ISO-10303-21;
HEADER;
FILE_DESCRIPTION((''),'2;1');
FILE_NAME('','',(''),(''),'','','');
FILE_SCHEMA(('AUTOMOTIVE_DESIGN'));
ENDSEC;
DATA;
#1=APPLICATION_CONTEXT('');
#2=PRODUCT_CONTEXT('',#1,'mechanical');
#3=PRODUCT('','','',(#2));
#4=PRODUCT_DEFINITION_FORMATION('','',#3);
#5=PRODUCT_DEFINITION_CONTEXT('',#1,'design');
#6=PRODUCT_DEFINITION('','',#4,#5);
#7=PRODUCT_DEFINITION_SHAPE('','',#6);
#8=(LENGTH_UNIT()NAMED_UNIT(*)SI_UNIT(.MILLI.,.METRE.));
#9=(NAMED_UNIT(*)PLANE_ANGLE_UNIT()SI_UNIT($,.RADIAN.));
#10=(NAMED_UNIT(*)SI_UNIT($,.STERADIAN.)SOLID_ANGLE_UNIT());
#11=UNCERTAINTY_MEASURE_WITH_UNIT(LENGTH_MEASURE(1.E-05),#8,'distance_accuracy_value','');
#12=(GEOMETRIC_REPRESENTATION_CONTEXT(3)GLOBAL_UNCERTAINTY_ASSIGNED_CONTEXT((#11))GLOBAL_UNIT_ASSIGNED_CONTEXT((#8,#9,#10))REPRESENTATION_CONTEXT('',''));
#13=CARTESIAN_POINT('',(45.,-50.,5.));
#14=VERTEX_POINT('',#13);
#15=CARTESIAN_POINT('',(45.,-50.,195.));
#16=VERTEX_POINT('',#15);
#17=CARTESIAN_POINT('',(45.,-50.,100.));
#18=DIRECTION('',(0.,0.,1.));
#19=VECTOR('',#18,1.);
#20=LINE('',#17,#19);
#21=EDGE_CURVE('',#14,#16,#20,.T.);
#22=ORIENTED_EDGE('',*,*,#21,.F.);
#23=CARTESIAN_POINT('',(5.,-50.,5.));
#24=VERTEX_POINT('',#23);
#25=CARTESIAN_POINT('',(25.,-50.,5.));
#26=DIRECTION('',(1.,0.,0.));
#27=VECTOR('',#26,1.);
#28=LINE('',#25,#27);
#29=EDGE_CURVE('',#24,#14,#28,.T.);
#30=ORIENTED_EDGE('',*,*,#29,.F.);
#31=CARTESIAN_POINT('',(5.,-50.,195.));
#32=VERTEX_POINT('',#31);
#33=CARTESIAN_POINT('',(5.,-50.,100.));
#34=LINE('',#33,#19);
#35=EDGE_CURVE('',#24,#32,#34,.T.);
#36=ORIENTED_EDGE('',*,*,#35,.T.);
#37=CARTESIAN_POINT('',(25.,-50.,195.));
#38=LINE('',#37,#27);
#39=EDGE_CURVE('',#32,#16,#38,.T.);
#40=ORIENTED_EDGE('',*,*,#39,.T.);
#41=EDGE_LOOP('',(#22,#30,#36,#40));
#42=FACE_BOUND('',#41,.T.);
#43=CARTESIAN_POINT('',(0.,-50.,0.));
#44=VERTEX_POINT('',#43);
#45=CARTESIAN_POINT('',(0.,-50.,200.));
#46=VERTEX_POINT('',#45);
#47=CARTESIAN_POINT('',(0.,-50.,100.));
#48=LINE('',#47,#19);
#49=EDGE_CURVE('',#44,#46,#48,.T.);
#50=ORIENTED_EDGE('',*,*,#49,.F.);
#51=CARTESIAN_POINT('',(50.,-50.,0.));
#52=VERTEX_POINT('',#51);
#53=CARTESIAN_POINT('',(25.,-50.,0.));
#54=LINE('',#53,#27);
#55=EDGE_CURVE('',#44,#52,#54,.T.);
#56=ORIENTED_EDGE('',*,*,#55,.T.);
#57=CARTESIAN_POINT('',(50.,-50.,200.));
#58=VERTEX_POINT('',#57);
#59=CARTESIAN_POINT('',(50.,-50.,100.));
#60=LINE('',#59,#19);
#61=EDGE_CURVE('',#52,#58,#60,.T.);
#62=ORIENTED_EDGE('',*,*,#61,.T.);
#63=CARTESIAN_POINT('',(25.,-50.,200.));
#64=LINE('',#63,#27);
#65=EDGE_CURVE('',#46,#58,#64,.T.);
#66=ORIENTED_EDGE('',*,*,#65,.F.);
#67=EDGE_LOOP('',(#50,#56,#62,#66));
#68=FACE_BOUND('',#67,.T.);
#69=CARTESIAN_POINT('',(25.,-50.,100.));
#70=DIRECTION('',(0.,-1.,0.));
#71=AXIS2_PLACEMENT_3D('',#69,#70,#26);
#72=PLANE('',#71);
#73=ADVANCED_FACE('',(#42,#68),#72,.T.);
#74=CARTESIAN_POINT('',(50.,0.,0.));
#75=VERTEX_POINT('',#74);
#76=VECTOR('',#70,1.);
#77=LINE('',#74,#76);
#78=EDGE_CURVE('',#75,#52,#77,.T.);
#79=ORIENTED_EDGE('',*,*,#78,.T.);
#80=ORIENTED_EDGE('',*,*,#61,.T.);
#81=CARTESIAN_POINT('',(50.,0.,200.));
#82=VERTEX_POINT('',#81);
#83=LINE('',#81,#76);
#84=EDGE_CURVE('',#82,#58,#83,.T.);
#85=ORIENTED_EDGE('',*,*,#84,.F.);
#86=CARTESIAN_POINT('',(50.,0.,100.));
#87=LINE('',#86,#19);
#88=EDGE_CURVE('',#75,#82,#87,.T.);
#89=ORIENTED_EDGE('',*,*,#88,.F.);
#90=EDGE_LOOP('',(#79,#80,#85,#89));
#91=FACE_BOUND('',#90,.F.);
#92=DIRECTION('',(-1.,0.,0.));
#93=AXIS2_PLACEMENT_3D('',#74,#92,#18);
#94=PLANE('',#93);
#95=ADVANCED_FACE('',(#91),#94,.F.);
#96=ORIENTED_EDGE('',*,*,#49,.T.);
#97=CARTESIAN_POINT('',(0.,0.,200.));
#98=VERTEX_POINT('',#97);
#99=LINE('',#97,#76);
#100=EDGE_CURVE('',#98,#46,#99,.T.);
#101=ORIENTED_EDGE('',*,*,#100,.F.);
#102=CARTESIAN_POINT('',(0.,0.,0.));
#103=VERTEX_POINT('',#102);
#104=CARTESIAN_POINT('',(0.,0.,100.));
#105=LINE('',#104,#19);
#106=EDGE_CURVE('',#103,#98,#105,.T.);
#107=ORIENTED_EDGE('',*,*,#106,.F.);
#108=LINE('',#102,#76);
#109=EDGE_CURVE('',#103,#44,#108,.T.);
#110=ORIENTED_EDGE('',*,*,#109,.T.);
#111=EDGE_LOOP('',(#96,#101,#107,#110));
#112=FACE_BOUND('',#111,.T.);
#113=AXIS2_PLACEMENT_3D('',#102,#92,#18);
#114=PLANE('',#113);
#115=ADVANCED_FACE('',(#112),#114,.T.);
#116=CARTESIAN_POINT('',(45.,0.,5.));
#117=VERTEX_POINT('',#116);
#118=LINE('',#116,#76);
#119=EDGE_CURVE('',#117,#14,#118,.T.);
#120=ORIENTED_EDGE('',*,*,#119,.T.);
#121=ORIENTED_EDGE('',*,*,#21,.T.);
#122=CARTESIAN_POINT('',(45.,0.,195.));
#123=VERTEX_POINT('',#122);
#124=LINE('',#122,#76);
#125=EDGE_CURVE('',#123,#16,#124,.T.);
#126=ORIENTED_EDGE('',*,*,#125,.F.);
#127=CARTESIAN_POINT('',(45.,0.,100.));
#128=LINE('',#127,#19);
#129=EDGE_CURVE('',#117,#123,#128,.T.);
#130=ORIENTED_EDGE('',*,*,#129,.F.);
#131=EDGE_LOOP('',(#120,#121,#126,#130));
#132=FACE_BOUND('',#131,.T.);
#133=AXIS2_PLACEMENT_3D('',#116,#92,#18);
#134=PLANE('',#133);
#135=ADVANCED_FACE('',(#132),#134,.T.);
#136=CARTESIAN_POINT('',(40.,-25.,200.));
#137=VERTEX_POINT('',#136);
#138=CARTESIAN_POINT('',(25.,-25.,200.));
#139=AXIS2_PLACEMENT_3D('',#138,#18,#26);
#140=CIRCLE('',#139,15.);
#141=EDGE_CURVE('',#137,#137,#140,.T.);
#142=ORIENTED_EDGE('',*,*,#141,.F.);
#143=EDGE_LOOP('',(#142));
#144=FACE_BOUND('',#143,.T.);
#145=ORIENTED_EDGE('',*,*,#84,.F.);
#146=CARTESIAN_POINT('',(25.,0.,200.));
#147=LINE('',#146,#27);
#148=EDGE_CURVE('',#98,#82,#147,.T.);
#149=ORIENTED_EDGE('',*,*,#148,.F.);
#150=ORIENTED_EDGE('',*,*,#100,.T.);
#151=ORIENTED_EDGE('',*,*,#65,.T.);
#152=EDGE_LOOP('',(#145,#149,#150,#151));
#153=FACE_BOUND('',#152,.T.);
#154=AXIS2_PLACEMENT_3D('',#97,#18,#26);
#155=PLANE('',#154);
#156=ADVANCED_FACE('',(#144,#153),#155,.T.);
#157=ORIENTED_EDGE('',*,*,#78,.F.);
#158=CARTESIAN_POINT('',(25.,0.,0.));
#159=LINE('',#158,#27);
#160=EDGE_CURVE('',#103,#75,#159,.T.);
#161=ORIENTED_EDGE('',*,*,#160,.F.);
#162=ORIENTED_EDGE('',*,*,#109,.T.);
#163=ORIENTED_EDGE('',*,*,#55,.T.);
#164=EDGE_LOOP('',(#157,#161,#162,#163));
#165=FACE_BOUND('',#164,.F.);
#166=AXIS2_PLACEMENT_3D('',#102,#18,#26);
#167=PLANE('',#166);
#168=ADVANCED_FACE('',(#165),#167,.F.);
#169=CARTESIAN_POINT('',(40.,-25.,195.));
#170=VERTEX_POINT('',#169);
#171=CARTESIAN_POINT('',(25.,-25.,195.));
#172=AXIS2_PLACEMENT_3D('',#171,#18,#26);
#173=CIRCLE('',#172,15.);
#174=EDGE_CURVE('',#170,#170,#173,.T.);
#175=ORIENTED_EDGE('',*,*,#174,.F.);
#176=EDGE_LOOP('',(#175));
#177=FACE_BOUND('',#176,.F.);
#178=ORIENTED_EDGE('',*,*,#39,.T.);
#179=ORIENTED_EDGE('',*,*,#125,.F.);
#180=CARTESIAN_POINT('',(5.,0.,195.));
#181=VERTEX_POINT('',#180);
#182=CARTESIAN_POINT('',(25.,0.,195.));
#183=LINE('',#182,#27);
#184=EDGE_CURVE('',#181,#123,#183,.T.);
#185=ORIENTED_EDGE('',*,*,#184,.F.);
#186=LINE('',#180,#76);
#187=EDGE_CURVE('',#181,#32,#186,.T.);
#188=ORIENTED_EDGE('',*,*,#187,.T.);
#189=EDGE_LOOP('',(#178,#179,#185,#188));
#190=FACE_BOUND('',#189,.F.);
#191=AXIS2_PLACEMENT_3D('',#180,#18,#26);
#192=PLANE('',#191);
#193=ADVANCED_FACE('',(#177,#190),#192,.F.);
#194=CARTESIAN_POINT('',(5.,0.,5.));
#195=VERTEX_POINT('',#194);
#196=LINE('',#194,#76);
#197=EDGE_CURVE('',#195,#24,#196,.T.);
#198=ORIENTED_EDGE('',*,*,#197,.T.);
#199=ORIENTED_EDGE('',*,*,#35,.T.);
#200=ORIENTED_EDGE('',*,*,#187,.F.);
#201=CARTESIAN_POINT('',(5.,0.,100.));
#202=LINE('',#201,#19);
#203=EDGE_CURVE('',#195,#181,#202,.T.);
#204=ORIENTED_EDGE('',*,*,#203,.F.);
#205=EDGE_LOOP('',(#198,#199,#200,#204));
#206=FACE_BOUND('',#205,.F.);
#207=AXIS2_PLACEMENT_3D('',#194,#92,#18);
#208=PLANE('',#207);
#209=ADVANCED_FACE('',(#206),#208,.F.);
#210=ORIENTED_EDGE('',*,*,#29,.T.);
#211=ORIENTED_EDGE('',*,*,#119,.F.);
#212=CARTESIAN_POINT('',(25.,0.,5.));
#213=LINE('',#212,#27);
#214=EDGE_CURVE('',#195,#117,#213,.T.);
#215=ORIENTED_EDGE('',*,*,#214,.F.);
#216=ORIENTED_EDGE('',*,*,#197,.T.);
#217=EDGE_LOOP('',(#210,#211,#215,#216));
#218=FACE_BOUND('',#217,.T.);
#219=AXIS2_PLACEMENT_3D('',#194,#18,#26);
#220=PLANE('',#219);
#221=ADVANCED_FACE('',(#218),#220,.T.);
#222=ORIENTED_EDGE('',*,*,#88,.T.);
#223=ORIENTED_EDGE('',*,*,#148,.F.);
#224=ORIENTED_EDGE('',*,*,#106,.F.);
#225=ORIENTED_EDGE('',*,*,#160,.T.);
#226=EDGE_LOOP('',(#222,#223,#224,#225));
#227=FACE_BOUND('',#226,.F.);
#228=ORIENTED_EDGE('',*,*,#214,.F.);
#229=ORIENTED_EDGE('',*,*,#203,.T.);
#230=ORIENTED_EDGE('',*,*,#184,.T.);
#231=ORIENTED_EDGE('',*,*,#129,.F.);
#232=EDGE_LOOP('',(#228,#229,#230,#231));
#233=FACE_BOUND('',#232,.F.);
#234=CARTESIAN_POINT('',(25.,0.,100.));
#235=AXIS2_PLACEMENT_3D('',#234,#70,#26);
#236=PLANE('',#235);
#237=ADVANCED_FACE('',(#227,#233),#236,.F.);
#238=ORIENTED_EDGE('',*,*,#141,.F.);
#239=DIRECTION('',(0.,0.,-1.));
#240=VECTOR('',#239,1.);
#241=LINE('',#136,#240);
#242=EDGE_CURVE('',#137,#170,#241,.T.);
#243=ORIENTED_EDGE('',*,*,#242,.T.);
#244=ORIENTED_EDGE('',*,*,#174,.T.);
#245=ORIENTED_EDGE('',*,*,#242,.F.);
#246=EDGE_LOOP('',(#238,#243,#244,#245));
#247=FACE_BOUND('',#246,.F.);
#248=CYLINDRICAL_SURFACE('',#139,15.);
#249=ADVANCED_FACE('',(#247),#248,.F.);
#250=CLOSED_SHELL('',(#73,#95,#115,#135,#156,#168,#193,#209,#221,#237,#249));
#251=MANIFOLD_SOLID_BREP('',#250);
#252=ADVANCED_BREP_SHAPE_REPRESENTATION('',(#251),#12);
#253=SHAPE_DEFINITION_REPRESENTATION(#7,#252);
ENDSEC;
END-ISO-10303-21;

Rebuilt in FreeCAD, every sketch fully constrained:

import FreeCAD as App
import Part
import Sketcher

V = App.Vector
Q = App.Units.Quantity

doc = App.newDocument("Part")
body = doc.addObject("PartDesign::Body", "Body")

sketch1 = body.newObject("Sketcher::SketchObject", "Sketch")
sketch1.AttachmentSupport = (doc.getObject("XZ_Plane"), [""])
sketch1.MapMode = "FlatFace"
sketch1.addGeometry([
    Part.LineSegment(V(0, 200, 0), V(0, 0, 0)),
    Part.LineSegment(V(0, 0, 0), V(50, 0, 0)),
    Part.LineSegment(V(50, 0, 0), V(50, 200, 0)),
    Part.LineSegment(V(50, 200, 0), V(0, 200, 0)),
    Part.LineSegment(V(45, 5, 0), V(5, 5, 0)),
    Part.LineSegment(V(5, 5, 0), V(5, 195, 0)),
    Part.LineSegment(V(5, 195, 0), V(45, 195, 0)),
    Part.LineSegment(V(45, 195, 0), V(45, 5, 0)),
], False)
sketch1.addConstraint([
    Sketcher.Constraint("Coincident", 0, 2, 1, 1),
    Sketcher.Constraint("Coincident", 1, 2, 2, 1),
    Sketcher.Constraint("Coincident", 2, 2, 3, 1),
    Sketcher.Constraint("Coincident", 3, 2, 0, 1),
    Sketcher.Constraint("Coincident", 4, 2, 5, 1),
    Sketcher.Constraint("Coincident", 5, 2, 6, 1),
    Sketcher.Constraint("Coincident", 6, 2, 7, 1),
    Sketcher.Constraint("Coincident", 7, 2, 4, 1),
    Sketcher.Constraint("Vertical", 0),
    Sketcher.Constraint("Horizontal", 1),
    Sketcher.Constraint("Vertical", 2),
    Sketcher.Constraint("Horizontal", 3),
    Sketcher.Constraint("Horizontal", 4),
    Sketcher.Constraint("Vertical", 5),
    Sketcher.Constraint("Horizontal", 6),
    Sketcher.Constraint("Vertical", 7),
    Sketcher.Constraint("Coincident", 0, 2, -1, 1),
    Sketcher.Constraint("DistanceX", 1, 1, 1, 2, Q("50 mm")),
    Sketcher.Constraint("DistanceX", 4, 2, 4, 1, Q("40 mm")),
    Sketcher.Constraint("DistanceY", 0, 2, 0, 1, Q("200 mm")),
    Sketcher.Constraint("DistanceY", 5, 1, 5, 2, Q("190 mm")),
    Sketcher.Constraint("DistanceX", -1, 1, 4, 2, Q("5 mm")),
    Sketcher.Constraint("DistanceY", -1, 1, 4, 2, Q("5 mm")),
])
pad1 = body.newObject("PartDesign::Pad", "Pad")
pad1.Profile = sketch1
pad1.Length = 50

sketch2 = body.newObject("Sketcher::SketchObject", "Sketch001")
sketch2.AttachmentSupport = (doc.getObject("XY_Plane"), [""])
sketch2.MapMode = "FlatFace"
sketch2.AttachmentOffset = App.Placement(V(0, 0, 200), App.Rotation())
sketch2.addGeometry(Part.Circle(V(25, -25, 0), V(0, 0, 1), 15), False)
sketch2.addConstraint([
    Sketcher.Constraint("Diameter", 0, Q("30 mm")),
    Sketcher.Constraint("DistanceX", -1, 1, 0, 3, Q("25 mm")),
    Sketcher.Constraint("DistanceY", 0, 3, -1, 1, Q("25 mm")),
])
pocket1 = body.newObject("PartDesign::Pocket", "Pocket")
pocket1.Profile = sketch2
pocket1.Length = 5

doc.recompute()
